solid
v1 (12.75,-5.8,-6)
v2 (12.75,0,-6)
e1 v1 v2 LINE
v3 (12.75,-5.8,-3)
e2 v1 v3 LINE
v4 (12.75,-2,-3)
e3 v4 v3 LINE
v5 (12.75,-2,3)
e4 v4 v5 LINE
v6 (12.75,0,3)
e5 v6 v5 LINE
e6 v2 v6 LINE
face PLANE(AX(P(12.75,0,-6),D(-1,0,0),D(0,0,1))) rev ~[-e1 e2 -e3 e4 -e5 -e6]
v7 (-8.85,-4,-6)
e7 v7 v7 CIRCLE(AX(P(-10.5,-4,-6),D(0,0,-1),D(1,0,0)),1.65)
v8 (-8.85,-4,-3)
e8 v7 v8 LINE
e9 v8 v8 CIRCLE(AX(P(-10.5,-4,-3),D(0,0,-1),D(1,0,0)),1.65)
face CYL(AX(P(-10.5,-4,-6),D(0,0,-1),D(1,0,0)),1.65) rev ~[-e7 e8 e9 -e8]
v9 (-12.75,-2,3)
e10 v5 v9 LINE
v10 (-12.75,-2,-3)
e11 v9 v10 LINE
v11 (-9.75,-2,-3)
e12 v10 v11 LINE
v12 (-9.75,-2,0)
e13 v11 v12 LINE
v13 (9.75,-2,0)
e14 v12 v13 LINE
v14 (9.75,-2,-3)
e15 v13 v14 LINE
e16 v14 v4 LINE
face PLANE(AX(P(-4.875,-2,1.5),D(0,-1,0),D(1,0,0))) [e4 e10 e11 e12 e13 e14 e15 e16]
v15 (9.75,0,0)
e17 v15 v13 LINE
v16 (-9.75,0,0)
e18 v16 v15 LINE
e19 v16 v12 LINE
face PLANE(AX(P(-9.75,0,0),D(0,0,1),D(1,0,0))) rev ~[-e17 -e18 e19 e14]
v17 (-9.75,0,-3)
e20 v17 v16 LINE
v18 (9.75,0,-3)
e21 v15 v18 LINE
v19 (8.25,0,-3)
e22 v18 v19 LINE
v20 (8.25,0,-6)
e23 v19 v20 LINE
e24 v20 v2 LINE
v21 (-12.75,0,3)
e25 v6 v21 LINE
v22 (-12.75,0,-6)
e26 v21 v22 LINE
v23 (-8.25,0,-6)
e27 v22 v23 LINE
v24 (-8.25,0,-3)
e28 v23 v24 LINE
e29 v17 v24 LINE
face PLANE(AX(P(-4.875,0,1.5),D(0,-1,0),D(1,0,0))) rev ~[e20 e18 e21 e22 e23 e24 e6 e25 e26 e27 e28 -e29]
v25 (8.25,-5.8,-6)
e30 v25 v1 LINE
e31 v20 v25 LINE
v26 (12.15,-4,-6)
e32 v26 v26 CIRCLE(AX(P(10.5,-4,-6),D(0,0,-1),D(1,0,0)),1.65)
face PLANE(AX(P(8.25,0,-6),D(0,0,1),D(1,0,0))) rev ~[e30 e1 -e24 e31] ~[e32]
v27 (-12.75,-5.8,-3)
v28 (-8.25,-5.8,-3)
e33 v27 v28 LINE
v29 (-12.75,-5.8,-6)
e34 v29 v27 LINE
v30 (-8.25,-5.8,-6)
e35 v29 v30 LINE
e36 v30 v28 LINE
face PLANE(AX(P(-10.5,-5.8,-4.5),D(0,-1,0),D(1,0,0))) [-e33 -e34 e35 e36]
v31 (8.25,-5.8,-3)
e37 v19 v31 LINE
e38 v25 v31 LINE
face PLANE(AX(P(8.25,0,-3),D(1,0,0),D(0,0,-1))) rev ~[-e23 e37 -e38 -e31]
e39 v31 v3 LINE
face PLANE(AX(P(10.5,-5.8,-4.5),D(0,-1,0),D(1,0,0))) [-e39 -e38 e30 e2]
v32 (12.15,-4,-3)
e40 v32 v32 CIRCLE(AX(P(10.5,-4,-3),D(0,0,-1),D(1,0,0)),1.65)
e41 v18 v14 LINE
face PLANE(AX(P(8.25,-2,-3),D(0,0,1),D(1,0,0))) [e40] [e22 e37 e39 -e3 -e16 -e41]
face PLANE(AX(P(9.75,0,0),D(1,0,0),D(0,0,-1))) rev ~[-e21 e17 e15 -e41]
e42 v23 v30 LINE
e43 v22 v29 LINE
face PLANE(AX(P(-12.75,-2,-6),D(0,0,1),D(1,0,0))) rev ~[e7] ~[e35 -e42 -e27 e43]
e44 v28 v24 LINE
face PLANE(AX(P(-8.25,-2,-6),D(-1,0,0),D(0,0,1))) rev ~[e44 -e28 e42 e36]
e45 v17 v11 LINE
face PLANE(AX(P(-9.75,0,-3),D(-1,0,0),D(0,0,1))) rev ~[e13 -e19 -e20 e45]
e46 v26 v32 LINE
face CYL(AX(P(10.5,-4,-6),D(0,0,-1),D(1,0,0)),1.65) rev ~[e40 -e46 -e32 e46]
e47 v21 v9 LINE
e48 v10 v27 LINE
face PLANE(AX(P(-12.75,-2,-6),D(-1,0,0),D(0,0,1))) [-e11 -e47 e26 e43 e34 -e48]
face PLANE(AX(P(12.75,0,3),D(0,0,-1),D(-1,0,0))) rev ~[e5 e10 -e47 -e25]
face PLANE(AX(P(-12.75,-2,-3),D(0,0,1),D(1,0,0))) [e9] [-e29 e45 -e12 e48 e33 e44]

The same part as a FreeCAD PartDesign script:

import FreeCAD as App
import Part
import Sketcher
from FreeCAD import Vector
Q = App.Units.Quantity


def add_polygon(sketch, points):
    """Adds a closed chain of lines whose ends are joined by coincident constraints."""
    first, n = sketch.GeometryCount, len(points)
    for a, b in zip(points, points[1:] + points[:1]):
        sketch.addGeometry(Part.LineSegment(App.Vector(*a, 0), App.Vector(*b, 0)), False)
    for i in range(n):
        sketch.addConstraint(Sketcher.Constraint("Coincident", first + i, 2, first + (i + 1) % n, 1))

doc = App.newDocument("Part")
body = doc.addObject("PartDesign::Body", "Body")

sketch1 = doc.addObject("Sketcher::SketchObject", "Sketch")
body.addObject(sketch1)
sketch1.AttachmentSupport = (doc.XZ_Plane, [""])
sketch1.MapMode = "FlatFace"
add_polygon(sketch1, [(9.8, 0), (9.8, -3), (8.2, -3), (8.2, -6), (12.8, -6), (12.8, 3), (-12.8, 3), (-12.8, -6), (-8.2, -6), (-8.2, -3), (-9.8, -3), (-9.8, 0)])
sketch1.addConstraint([
    Sketcher.Constraint("Vertical", 0),
    Sketcher.Constraint("Horizontal", 1),
    Sketcher.Constraint("Vertical", 2),
    Sketcher.Constraint("Horizontal", 3),
    Sketcher.Constraint("Vertical", 4),
    Sketcher.Constraint("Horizontal", 5),
    Sketcher.Constraint("Vertical", 6),
    Sketcher.Constraint("Horizontal", 7),
    Sketcher.Constraint("Vertical", 8),
    Sketcher.Constraint("Horizontal", 9),
    Sketcher.Constraint("Vertical", 10),
    Sketcher.Constraint("Horizontal", 11),
    Sketcher.Constraint("Symmetric", 10, 2, 11, 2, -1, 1),
    Sketcher.Constraint("Symmetric", 3, 2, 6, 2, -2),
    Sketcher.Constraint("Symmetric", 1, 2, 8, 2, -2),
    Sketcher.Constraint("Equal", 0, 2),
    Sketcher.Constraint("DistanceY", 0, 2, 0, 1, Q("3 mm")),
    Sketcher.Constraint("DistanceY", 4, 1, 4, 2, Q("9 mm")),
    Sketcher.Constraint("DistanceX", 1, 2, 1, 1, Q("1.5 mm")),
    Sketcher.Constraint("DistanceX", 3, 1, 3, 2, Q("4.5 mm")),
    Sketcher.Constraint("DistanceX", 5, 2, 5, 1, Q("25.5 mm")),
])
pad1 = doc.addObject("PartDesign::Pad", "Pad")
body.addObject(pad1)
pad1.Profile = sketch1
pad1.Length = 2

sketch2 = doc.addObject("Sketcher::SketchObject", "Sketch001")
body.addObject(sketch2)
sketch2.AttachmentSupport = (doc.XZ_Plane, [""])
sketch2.MapMode = "FlatFace"
sketch2.AttachmentOffset = App.Placement(Vector(0, 0, 2), App.Rotation())
add_polygon(sketch2, [(-12.8, -3), (-12.8, -6), (-8.2, -6), (-8.2, -3)])
add_polygon(sketch2, [(8.2, -3), (8.2, -6), (12.8, -6), (12.8, -3)])
sketch2.addConstraint([
    Sketcher.Constraint("Vertical", 0),
    Sketcher.Constraint("Horizontal", 1),
    Sketcher.Constraint("Vertical", 2),
    Sketcher.Constraint("Horizontal", 3),
    Sketcher.Constraint("Vertical", 4),
    Sketcher.Constraint("Horizontal", 5),
    Sketcher.Constraint("Vertical", 6),
    Sketcher.Constraint("Horizontal", 7),
    Sketcher.Constraint("Symmetric", 1, 2, 4, 2, -2),
    Sketcher.Constraint("Symmetric", 3, 2, 6, 2, -2),
    Sketcher.Constraint("DistanceY", 0, 2, 0, 1, Q("3 mm")),
    Sketcher.Constraint("DistanceX", 1, 1, 1, 2, Q("4.5 mm")),
    Sketcher.Constraint("DistanceY", 0, 2, -1, 1, Q("6 mm")),
    Sketcher.Constraint("DistanceX", 0, 2, 4, 2, Q("21 mm")),
])
pad2 = doc.addObject("PartDesign::Pad", "Pad001")
body.addObject(pad2)
pad2.Profile = sketch2
pad2.Length = 3.8

sketch3 = doc.addObject("Sketcher::SketchObject", "Sketch002")
body.addObject(sketch3)
sketch3.AttachmentSupport = (doc.XY_Plane, [""])
sketch3.MapMode = "FlatFace"
sketch3.AttachmentOffset = App.Placement(Vector(0, 0, -6), App.Rotation())
sketch3.addGeometry([
    Part.Circle(Vector(-10.5, -4, 0), Vector(0, 0, 1), 1.6),
    Part.Circle(Vector(10.5, -4, 0), Vector(0, 0, 1), 1.6),
], False)
sketch3.addConstraint([
    Sketcher.Constraint("Equal", 0, 1),
    Sketcher.Constraint("Symmetric", 0, 3, 1, 3, -2),
    Sketcher.Constraint("Diameter", 0, Q("3.3 mm")),
    Sketcher.Constraint("DistanceY", 0, 3, -1, 1, Q("4 mm")),
    Sketcher.Constraint("DistanceX", 0, 3, 1, 3, Q("21 mm")),
])
pocket1 = doc.addObject("PartDesign::Pocket", "Pocket")
body.addObject(pocket1)
pocket1.Profile = sketch3
pocket1.Type = "ThroughAll"
pocket1.Reversed = True

doc.recompute()
